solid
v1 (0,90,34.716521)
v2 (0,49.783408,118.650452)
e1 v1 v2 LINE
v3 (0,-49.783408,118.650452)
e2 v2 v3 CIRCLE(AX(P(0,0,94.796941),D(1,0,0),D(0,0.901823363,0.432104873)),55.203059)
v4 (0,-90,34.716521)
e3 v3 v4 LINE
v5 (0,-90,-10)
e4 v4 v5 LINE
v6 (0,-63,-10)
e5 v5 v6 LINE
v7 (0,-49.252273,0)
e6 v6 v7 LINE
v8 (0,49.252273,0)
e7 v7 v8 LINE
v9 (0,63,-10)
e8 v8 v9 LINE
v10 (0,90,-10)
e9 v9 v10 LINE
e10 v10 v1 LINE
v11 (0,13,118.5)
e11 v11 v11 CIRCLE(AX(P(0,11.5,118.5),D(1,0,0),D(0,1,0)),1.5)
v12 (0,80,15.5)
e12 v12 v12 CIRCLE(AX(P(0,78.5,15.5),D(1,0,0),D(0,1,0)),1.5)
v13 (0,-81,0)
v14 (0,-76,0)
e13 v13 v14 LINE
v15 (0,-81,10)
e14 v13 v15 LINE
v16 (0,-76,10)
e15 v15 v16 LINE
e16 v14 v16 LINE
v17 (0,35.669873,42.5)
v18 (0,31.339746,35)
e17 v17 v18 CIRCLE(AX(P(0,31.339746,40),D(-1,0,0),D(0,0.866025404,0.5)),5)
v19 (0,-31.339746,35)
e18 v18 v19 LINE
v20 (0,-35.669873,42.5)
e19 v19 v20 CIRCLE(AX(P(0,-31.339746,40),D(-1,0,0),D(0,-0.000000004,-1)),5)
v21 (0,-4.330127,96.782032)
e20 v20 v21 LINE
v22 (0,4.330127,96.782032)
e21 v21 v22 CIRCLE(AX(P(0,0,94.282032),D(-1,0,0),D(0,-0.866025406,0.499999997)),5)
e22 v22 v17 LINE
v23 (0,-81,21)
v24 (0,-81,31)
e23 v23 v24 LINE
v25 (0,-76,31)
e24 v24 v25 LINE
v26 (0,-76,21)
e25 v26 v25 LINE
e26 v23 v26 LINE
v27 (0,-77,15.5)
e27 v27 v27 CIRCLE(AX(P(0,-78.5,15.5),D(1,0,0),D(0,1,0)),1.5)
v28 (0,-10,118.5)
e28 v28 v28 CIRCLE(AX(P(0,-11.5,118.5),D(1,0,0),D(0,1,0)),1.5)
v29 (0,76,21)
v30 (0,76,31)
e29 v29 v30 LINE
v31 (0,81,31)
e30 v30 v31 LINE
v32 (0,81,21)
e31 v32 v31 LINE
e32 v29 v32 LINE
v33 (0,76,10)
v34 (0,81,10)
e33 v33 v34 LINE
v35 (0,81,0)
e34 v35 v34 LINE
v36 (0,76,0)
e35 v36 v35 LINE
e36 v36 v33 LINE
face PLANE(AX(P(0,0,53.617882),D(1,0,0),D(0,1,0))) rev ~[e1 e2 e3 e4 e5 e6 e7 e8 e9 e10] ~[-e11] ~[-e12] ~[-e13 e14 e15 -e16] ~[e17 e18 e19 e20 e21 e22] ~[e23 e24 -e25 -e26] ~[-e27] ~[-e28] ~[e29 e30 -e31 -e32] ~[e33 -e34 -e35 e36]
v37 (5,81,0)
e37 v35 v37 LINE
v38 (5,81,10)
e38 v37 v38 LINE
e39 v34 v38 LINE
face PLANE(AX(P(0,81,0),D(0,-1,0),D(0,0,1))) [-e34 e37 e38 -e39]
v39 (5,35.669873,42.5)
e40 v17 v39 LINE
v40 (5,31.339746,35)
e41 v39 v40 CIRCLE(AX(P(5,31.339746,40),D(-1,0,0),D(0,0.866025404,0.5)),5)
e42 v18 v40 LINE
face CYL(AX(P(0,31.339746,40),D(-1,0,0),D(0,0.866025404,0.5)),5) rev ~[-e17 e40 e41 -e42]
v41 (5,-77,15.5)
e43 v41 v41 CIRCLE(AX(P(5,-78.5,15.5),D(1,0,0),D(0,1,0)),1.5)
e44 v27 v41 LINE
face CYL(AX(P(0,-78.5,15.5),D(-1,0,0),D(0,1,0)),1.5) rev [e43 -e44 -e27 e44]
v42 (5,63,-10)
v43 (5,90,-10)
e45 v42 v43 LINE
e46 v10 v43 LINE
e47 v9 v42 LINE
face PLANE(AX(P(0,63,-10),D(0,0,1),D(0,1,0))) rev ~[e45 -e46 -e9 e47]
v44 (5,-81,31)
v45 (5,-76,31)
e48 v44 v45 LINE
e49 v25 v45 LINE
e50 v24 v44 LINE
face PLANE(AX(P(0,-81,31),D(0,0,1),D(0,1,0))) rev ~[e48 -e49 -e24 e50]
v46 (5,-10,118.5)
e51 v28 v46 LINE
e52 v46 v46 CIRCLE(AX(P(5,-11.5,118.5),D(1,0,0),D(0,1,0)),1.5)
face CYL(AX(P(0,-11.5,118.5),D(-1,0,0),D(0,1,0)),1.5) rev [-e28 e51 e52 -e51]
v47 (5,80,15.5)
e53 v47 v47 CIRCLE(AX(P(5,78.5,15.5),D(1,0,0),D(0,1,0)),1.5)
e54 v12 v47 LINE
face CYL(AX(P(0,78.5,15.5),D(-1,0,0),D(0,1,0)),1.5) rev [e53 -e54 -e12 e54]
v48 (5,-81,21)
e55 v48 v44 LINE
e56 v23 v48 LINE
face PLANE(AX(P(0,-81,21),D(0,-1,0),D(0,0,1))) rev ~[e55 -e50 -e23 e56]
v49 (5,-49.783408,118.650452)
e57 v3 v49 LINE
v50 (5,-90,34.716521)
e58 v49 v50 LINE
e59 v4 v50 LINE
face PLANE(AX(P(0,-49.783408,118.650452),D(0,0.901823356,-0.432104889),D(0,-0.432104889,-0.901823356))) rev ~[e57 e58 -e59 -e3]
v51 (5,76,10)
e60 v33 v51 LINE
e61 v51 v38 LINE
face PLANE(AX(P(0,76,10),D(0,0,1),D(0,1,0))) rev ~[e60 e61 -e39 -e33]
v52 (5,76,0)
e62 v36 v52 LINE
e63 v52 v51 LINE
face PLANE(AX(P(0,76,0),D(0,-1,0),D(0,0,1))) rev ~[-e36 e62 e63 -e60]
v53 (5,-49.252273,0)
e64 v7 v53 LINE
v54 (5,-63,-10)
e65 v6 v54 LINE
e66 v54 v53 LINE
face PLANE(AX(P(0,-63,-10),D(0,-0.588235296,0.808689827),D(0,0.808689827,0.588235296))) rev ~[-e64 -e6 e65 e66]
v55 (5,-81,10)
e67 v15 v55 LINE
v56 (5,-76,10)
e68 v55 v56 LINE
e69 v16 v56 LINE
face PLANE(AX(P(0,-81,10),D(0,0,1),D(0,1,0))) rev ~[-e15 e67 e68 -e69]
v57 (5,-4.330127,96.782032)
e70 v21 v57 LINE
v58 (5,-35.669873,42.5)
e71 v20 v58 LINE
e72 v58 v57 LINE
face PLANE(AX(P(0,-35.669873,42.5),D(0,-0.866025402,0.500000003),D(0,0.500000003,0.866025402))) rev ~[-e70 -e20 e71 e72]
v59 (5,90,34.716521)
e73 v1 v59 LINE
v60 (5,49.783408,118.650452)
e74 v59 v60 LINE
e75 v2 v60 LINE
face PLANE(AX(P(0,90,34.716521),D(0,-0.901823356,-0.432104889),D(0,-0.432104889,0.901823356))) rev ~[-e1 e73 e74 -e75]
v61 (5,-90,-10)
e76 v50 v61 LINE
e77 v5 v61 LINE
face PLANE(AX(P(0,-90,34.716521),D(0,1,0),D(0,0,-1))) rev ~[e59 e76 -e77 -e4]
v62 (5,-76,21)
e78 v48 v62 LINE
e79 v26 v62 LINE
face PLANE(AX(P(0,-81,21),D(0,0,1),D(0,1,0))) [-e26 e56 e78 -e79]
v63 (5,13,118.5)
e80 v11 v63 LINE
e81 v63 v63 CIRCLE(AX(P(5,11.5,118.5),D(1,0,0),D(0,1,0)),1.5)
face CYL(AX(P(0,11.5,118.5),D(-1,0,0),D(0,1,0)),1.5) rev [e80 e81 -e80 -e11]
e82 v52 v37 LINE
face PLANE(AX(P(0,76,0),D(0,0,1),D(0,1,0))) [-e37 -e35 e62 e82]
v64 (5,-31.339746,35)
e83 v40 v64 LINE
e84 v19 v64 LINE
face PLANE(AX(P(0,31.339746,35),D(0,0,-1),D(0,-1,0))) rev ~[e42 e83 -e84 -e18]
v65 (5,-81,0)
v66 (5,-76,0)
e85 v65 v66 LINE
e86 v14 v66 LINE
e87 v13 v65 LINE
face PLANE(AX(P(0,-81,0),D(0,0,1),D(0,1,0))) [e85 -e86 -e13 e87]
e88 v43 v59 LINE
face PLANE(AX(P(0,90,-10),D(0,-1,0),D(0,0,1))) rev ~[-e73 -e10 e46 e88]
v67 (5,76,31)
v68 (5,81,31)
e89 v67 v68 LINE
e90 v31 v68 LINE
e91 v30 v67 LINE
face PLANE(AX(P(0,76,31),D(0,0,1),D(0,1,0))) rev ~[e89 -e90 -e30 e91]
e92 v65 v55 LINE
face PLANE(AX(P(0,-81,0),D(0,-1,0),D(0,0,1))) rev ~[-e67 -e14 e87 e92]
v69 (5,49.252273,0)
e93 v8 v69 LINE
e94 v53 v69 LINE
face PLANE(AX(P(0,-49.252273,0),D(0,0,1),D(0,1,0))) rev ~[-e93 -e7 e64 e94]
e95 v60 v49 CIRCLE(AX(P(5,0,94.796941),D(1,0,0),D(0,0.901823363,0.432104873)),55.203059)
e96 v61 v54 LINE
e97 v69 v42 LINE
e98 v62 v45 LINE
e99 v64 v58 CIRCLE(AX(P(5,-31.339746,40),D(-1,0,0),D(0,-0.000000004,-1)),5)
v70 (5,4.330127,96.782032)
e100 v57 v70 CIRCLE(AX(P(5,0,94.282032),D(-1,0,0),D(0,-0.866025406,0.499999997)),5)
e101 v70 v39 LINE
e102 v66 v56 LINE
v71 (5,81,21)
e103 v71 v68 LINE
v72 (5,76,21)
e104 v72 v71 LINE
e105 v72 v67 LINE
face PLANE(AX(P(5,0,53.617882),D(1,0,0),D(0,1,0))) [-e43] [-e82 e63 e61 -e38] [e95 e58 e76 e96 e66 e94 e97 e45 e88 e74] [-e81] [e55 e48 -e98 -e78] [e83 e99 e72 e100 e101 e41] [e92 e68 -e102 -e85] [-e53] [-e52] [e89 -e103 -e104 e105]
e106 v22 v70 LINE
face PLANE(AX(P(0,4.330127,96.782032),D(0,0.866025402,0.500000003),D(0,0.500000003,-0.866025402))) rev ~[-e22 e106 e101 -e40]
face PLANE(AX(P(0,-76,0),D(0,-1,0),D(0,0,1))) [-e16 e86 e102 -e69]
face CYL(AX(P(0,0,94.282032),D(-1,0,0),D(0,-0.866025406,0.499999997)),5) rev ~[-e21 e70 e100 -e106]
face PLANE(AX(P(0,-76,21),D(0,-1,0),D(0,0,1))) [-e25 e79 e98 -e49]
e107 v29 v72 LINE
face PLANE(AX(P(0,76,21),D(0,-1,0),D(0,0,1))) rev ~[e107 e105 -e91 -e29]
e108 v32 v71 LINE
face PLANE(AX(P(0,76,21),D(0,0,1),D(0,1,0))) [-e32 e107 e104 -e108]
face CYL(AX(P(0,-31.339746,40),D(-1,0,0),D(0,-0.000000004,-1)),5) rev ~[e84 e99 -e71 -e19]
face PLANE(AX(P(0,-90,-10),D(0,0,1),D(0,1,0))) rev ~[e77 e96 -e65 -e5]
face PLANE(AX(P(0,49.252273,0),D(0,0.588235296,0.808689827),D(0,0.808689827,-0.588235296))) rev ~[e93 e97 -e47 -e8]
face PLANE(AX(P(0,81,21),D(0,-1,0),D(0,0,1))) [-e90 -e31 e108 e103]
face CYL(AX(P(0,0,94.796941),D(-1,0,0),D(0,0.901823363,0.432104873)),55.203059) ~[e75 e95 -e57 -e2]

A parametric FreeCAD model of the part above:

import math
import FreeCAD as App
import Part
import Sketcher
Q = App.Units.Quantity


def add_polygon(sketch, points):
    """Adds a closed chain of lines whose ends are joined by coincident constraints."""
    first, n = sketch.GeometryCount, len(points)
    for a, b in zip(points, points[1:] + points[:1]):
        sketch.addGeometry(Part.LineSegment(App.Vector(*a, 0), App.Vector(*b, 0)), False)
    for i in range(n):
        sketch.addConstraint(Sketcher.Constraint("Coincident", first + i, 2, first + (i + 1) % n, 1))

doc = App.newDocument("Part")
params = doc.addObject("Spreadsheet::Sheet", "Params")
for row, (alias, value) in enumerate([
    ("sketch1_diameter", "3 mm"),
    ("sketch1_radius", "5 mm"),
    ("sketch1_width", "27 mm"),
    ("sketch1_width2", "5 mm"),
    ("sketch1_height", "10 mm"),
    ("pad1_length", "5 mm"),
], start=1):
    params.set(f"A{row}", alias)
    params.set(f"B{row}", "=" + value)
    params.setAlias(f"B{row}", alias)

body = doc.addObject("PartDesign::Body", "Body")

# Sketch on YZ plane
sketch1 = body.newObject("Sketcher::SketchObject", "Sketch")
sketch1.AttachmentSupport = (doc.getObject("YZ_Plane"), [""])
sketch1.MapMode = "FlatFace"
sketch1.addGeometry(Part.LineSegment(App.Vector(-49.3, 0, 0), App.Vector(49.3, 0, 0)), False)  # 0
sketch1.addGeometry(Part.LineSegment(App.Vector(49.3, 0, 0), App.Vector(63, -10, 0)), False)  # 1
sketch1.addGeometry(Part.LineSegment(App.Vector(63, -10, 0), App.Vector(90, -10, 0)), False)  # 2
sketch1.addGeometry(Part.LineSegment(App.Vector(90, -10, 0), App.Vector(90, 34.7, 0)), False)  # 3
sketch1.addGeometry(Part.LineSegment(App.Vector(90, 34.7, 0), App.Vector(49.8, 118.7, 0)), False)  # 4
sketch1.addGeometry(Part.ArcOfCircle(Part.Circle(App.Vector(0, 94.8, 0), App.Vector(0, 0, 1), 55.2), math.radians(26), math.radians(154)), False)  # 5
sketch1.addGeometry(Part.LineSegment(App.Vector(-49.8, 118.7, 0), App.Vector(-90, 34.7, 0)), False)  # 6
sketch1.addGeometry(Part.LineSegment(App.Vector(-90, 34.7, 0), App.Vector(-90, -10, 0)), False)  # 7
sketch1.addGeometry(Part.LineSegment(App.Vector(-90, -10, 0), App.Vector(-63, -10, 0)), False)  # 8
sketch1.addGeometry(Part.LineSegment(App.Vector(-63, -10, 0), App.Vector(-49.3, 0, 0)), False)  # 9
add_polygon(sketch1, [(-76, 0), (-81, 0), (-81, 10), (-76, 10)])  # lines 10-13
sketch1.addGeometry(Part.Circle(App.Vector(-78.5, 15.5, 0), App.Vector(0, 0, 1), 1.5), False)  # 14
add_polygon(sketch1, [(-76, 21), (-81, 21), (-81, 31), (-76, 31)])  # lines 15-18
add_polygon(sketch1, [(81, 0), (76, 0), (76, 10), (81, 10)])  # lines 19-22
sketch1.addGeometry(Part.Circle(App.Vector(78.5, 15.5, 0), App.Vector(0, 0, 1), 1.5), False)  # 23
add_polygon(sketch1, [(81, 21), (76, 21), (76, 31), (81, 31)])  # lines 24-27
sketch1.addGeometry(Part.Circle(App.Vector(-11.5, 118.5, 0), App.Vector(0, 0, 1), 1.5), False)  # 28
sketch1.addGeometry(Part.ArcOfCircle(Part.Circle(App.Vector(-31.3, 40, 0), App.Vector(0, 0, 1), 5), math.radians(150), math.radians(270)), False)  # 29
sketch1.addGeometry(Part.LineSegment(App.Vector(-35.7, 42.5, 0), App.Vector(-4.3, 96.8, 0)), False)  # 30
sketch1.addGeometry(Part.ArcOfCircle(Part.Circle(App.Vector(0, 94.3, 0), App.Vector(0, 0, 1), 5), math.radians(30), math.radians(150)), False)  # 31
sketch1.addGeometry(Part.LineSegment(App.Vector(4.3, 96.8, 0), App.Vector(35.7, 42.5, 0)), False)  # 32
sketch1.addGeometry(Part.ArcOfCircle(Part.Circle(App.Vector(31.3, 40, 0), App.Vector(0, 0, 1), 5), math.radians(-90), math.radians(30)), False)  # 33
sketch1.addGeometry(Part.LineSegment(App.Vector(31.3, 35, 0), App.Vector(-31.3, 35, 0)), False)  # 34
sketch1.addGeometry(Part.Circle(App.Vector(11.5, 118.5, 0), App.Vector(0, 0, 1), 1.5), False)  # 35
sketch1.addConstraint([
    Sketcher.Constraint("Coincident", 0, 2, 1, 1),
    Sketcher.Constraint("Coincident", 1, 2, 2, 1),
    Sketcher.Constraint("Coincident", 2, 2, 3, 1),
    Sketcher.Constraint("Coincident", 3, 2, 4, 1),
    Sketcher.Constraint("Tangent", 4, 2, 5, 1),
    Sketcher.Constraint("Tangent", 5, 2, 6, 1),
    Sketcher.Constraint("Coincident", 6, 2, 7, 1),
    Sketcher.Constraint("Coincident", 7, 2, 8, 1),
    Sketcher.Constraint("Coincident", 8, 2, 9, 1),
    Sketcher.Constraint("Coincident", 9, 2, 0, 1),
    Sketcher.Constraint("Tangent", 29, 1, 30, 1),
    Sketcher.Constraint("Tangent", 30, 2, 31, 2),
    Sketcher.Constraint("Tangent", 31, 1, 32, 1),
    Sketcher.Constraint("Tangent", 32, 2, 33, 2),
    Sketcher.Constraint("Tangent", 33, 1, 34, 1),
    Sketcher.Constraint("Tangent", 34, 2, 29, 2),
    Sketcher.Constraint("Horizontal", 0),
    Sketcher.Constraint("Horizontal", 2),
    Sketcher.Constraint("Vertical", 3),
    Sketcher.Constraint("Vertical", 7),
    Sketcher.Constraint("Horizontal", 8),
    Sketcher.Constraint("Horizontal", 10),
    Sketcher.Constraint("Vertical", 11),
    Sketcher.Constraint("Horizontal", 12),
    Sketcher.Constraint("Vertical", 13),
    Sketcher.Constraint("Horizontal", 15),
    Sketcher.Constraint("Vertical", 16),
    Sketcher.Constraint("Horizontal", 17),
    Sketcher.Constraint("Vertical", 18),
    Sketcher.Constraint("Horizontal", 19),
    Sketcher.Constraint("Vertical", 20),
    Sketcher.Constraint("Horizontal", 21),
    Sketcher.Constraint("Vertical", 22),
    Sketcher.Constraint("Horizontal", 24),
    Sketcher.Constraint("Vertical", 25),
    Sketcher.Constraint("Horizontal", 26),
    Sketcher.Constraint("Vertical", 27),
    Sketcher.Constraint("Horizontal", 34),
    Sketcher.Constraint("Equal", 14, 23),
    Sketcher.Constraint("Equal", 23, 28),
    Sketcher.Constraint("Equal", 29, 31),
    Sketcher.Constraint("Equal", 31, 33),
    Sketcher.Constraint("Equal", 28, 35),
    Sketcher.Constraint("Symmetric", 0, 2, 9, 2, -1, 1),
    Sketcher.Constraint("Symmetric", 13, 2, 19, 2, -1, 1),
    Sketcher.Constraint("Symmetric", 14, 3, 23, 3, -2),
    Sketcher.Constraint("Symmetric", 28, 3, 35, 3, -2),
    Sketcher.Constraint("Symmetric", 4, 2, 5, 2, -2),
    Sketcher.Constraint("Symmetric", 2, 2, 7, 2, -2),
    Sketcher.Constraint("Symmetric", 11, 2, 21, 2, -2),
    Sketcher.Constraint("Symmetric", 18, 2, 24, 2, -2),
    Sketcher.Constraint("Symmetric", 16, 2, 26, 2, -2),
    Sketcher.Constraint("Symmetric", 30, 2, 31, 1, -2),
    Sketcher.Constraint("PointOnObject", 10, 2, -1),
    Sketcher.Constraint("Vertical", 11, 2, 15, 2),
    Sketcher.Constraint("Vertical", 13, 2, 17, 2),
    Sketcher.Constraint("Equal", 2, 8),
    Sketcher.Constraint("Equal", 13, 16),
    Sketcher.Constraint("Diameter", 14, Q("3 mm")),
    Sketcher.Constraint("Radius", 29, Q("5 mm")),
    Sketcher.Constraint("DistanceX", 2, 1, 2, 2, Q("27 mm")),
    Sketcher.Constraint("DistanceX", 10, 2, 10, 1, Q("5 mm")),
    Sketcher.Constraint("DistanceY", 11, 1, 11, 2, Q("10 mm")),
    Sketcher.Constraint("Angle", 30, Q("60 deg")),
    Sketcher.Constraint("Distance", 1, Q("17 mm")),
    Sketcher.Constraint("DistanceY", -1, 1, 29, 3, Q("40 mm")),
    Sketcher.Constraint("DistanceX", -1, 1, 1, 2, Q("63 mm")),
    Sketcher.Constraint("DistanceY", 1, 2, -1, 1, Q("10 mm")),
    Sketcher.Constraint("DistanceX", 10, 2, -1, 1, Q("81 mm")),
    Sketcher.Constraint("DistanceY", -1, 1, 15, 2, Q("21 mm")),
    Sketcher.Constraint("DistanceX", 14, 3, 23, 3, Q("157 mm")),
    Sketcher.Constraint("DistanceX", 14, 3, 28, 3, Q("67 mm")),
    Sketcher.Constraint("DistanceY", 14, 3, 28, 3, Q("103 mm")),
    Sketcher.Constraint("DistanceY", -1, 1, 14, 3, Q("15.5 mm")),
    Sketcher.Constraint("Radius", 5, Q("55.203059 mm")),
    Sketcher.Constraint("DistanceY", 3, 1, 3, 2, Q("44.716521 mm")),
    Sketcher.Constraint("DistanceX", 9, 2, 29, 1, Q("13.5824 mm")),
    Sketcher.Constraint("DistanceY", -1, 1, 5, 3, Q("94.796941 mm")),
])
sketch1.setExpression("Constraints[74]", "Params.sketch1_diameter")
sketch1.setExpression("Constraints[75]", "Params.sketch1_radius")
sketch1.setExpression("Constraints[76]", "Params.sketch1_width")
sketch1.setExpression("Constraints[77]", "Params.sketch1_width2")
sketch1.setExpression("Constraints[78]", "Params.sketch1_height")
pad1 = body.newObject("PartDesign::Pad", "Pad")
pad1.Profile = sketch1
pad1.setExpression("Length", "Params.pad1_length")

doc.recompute()
